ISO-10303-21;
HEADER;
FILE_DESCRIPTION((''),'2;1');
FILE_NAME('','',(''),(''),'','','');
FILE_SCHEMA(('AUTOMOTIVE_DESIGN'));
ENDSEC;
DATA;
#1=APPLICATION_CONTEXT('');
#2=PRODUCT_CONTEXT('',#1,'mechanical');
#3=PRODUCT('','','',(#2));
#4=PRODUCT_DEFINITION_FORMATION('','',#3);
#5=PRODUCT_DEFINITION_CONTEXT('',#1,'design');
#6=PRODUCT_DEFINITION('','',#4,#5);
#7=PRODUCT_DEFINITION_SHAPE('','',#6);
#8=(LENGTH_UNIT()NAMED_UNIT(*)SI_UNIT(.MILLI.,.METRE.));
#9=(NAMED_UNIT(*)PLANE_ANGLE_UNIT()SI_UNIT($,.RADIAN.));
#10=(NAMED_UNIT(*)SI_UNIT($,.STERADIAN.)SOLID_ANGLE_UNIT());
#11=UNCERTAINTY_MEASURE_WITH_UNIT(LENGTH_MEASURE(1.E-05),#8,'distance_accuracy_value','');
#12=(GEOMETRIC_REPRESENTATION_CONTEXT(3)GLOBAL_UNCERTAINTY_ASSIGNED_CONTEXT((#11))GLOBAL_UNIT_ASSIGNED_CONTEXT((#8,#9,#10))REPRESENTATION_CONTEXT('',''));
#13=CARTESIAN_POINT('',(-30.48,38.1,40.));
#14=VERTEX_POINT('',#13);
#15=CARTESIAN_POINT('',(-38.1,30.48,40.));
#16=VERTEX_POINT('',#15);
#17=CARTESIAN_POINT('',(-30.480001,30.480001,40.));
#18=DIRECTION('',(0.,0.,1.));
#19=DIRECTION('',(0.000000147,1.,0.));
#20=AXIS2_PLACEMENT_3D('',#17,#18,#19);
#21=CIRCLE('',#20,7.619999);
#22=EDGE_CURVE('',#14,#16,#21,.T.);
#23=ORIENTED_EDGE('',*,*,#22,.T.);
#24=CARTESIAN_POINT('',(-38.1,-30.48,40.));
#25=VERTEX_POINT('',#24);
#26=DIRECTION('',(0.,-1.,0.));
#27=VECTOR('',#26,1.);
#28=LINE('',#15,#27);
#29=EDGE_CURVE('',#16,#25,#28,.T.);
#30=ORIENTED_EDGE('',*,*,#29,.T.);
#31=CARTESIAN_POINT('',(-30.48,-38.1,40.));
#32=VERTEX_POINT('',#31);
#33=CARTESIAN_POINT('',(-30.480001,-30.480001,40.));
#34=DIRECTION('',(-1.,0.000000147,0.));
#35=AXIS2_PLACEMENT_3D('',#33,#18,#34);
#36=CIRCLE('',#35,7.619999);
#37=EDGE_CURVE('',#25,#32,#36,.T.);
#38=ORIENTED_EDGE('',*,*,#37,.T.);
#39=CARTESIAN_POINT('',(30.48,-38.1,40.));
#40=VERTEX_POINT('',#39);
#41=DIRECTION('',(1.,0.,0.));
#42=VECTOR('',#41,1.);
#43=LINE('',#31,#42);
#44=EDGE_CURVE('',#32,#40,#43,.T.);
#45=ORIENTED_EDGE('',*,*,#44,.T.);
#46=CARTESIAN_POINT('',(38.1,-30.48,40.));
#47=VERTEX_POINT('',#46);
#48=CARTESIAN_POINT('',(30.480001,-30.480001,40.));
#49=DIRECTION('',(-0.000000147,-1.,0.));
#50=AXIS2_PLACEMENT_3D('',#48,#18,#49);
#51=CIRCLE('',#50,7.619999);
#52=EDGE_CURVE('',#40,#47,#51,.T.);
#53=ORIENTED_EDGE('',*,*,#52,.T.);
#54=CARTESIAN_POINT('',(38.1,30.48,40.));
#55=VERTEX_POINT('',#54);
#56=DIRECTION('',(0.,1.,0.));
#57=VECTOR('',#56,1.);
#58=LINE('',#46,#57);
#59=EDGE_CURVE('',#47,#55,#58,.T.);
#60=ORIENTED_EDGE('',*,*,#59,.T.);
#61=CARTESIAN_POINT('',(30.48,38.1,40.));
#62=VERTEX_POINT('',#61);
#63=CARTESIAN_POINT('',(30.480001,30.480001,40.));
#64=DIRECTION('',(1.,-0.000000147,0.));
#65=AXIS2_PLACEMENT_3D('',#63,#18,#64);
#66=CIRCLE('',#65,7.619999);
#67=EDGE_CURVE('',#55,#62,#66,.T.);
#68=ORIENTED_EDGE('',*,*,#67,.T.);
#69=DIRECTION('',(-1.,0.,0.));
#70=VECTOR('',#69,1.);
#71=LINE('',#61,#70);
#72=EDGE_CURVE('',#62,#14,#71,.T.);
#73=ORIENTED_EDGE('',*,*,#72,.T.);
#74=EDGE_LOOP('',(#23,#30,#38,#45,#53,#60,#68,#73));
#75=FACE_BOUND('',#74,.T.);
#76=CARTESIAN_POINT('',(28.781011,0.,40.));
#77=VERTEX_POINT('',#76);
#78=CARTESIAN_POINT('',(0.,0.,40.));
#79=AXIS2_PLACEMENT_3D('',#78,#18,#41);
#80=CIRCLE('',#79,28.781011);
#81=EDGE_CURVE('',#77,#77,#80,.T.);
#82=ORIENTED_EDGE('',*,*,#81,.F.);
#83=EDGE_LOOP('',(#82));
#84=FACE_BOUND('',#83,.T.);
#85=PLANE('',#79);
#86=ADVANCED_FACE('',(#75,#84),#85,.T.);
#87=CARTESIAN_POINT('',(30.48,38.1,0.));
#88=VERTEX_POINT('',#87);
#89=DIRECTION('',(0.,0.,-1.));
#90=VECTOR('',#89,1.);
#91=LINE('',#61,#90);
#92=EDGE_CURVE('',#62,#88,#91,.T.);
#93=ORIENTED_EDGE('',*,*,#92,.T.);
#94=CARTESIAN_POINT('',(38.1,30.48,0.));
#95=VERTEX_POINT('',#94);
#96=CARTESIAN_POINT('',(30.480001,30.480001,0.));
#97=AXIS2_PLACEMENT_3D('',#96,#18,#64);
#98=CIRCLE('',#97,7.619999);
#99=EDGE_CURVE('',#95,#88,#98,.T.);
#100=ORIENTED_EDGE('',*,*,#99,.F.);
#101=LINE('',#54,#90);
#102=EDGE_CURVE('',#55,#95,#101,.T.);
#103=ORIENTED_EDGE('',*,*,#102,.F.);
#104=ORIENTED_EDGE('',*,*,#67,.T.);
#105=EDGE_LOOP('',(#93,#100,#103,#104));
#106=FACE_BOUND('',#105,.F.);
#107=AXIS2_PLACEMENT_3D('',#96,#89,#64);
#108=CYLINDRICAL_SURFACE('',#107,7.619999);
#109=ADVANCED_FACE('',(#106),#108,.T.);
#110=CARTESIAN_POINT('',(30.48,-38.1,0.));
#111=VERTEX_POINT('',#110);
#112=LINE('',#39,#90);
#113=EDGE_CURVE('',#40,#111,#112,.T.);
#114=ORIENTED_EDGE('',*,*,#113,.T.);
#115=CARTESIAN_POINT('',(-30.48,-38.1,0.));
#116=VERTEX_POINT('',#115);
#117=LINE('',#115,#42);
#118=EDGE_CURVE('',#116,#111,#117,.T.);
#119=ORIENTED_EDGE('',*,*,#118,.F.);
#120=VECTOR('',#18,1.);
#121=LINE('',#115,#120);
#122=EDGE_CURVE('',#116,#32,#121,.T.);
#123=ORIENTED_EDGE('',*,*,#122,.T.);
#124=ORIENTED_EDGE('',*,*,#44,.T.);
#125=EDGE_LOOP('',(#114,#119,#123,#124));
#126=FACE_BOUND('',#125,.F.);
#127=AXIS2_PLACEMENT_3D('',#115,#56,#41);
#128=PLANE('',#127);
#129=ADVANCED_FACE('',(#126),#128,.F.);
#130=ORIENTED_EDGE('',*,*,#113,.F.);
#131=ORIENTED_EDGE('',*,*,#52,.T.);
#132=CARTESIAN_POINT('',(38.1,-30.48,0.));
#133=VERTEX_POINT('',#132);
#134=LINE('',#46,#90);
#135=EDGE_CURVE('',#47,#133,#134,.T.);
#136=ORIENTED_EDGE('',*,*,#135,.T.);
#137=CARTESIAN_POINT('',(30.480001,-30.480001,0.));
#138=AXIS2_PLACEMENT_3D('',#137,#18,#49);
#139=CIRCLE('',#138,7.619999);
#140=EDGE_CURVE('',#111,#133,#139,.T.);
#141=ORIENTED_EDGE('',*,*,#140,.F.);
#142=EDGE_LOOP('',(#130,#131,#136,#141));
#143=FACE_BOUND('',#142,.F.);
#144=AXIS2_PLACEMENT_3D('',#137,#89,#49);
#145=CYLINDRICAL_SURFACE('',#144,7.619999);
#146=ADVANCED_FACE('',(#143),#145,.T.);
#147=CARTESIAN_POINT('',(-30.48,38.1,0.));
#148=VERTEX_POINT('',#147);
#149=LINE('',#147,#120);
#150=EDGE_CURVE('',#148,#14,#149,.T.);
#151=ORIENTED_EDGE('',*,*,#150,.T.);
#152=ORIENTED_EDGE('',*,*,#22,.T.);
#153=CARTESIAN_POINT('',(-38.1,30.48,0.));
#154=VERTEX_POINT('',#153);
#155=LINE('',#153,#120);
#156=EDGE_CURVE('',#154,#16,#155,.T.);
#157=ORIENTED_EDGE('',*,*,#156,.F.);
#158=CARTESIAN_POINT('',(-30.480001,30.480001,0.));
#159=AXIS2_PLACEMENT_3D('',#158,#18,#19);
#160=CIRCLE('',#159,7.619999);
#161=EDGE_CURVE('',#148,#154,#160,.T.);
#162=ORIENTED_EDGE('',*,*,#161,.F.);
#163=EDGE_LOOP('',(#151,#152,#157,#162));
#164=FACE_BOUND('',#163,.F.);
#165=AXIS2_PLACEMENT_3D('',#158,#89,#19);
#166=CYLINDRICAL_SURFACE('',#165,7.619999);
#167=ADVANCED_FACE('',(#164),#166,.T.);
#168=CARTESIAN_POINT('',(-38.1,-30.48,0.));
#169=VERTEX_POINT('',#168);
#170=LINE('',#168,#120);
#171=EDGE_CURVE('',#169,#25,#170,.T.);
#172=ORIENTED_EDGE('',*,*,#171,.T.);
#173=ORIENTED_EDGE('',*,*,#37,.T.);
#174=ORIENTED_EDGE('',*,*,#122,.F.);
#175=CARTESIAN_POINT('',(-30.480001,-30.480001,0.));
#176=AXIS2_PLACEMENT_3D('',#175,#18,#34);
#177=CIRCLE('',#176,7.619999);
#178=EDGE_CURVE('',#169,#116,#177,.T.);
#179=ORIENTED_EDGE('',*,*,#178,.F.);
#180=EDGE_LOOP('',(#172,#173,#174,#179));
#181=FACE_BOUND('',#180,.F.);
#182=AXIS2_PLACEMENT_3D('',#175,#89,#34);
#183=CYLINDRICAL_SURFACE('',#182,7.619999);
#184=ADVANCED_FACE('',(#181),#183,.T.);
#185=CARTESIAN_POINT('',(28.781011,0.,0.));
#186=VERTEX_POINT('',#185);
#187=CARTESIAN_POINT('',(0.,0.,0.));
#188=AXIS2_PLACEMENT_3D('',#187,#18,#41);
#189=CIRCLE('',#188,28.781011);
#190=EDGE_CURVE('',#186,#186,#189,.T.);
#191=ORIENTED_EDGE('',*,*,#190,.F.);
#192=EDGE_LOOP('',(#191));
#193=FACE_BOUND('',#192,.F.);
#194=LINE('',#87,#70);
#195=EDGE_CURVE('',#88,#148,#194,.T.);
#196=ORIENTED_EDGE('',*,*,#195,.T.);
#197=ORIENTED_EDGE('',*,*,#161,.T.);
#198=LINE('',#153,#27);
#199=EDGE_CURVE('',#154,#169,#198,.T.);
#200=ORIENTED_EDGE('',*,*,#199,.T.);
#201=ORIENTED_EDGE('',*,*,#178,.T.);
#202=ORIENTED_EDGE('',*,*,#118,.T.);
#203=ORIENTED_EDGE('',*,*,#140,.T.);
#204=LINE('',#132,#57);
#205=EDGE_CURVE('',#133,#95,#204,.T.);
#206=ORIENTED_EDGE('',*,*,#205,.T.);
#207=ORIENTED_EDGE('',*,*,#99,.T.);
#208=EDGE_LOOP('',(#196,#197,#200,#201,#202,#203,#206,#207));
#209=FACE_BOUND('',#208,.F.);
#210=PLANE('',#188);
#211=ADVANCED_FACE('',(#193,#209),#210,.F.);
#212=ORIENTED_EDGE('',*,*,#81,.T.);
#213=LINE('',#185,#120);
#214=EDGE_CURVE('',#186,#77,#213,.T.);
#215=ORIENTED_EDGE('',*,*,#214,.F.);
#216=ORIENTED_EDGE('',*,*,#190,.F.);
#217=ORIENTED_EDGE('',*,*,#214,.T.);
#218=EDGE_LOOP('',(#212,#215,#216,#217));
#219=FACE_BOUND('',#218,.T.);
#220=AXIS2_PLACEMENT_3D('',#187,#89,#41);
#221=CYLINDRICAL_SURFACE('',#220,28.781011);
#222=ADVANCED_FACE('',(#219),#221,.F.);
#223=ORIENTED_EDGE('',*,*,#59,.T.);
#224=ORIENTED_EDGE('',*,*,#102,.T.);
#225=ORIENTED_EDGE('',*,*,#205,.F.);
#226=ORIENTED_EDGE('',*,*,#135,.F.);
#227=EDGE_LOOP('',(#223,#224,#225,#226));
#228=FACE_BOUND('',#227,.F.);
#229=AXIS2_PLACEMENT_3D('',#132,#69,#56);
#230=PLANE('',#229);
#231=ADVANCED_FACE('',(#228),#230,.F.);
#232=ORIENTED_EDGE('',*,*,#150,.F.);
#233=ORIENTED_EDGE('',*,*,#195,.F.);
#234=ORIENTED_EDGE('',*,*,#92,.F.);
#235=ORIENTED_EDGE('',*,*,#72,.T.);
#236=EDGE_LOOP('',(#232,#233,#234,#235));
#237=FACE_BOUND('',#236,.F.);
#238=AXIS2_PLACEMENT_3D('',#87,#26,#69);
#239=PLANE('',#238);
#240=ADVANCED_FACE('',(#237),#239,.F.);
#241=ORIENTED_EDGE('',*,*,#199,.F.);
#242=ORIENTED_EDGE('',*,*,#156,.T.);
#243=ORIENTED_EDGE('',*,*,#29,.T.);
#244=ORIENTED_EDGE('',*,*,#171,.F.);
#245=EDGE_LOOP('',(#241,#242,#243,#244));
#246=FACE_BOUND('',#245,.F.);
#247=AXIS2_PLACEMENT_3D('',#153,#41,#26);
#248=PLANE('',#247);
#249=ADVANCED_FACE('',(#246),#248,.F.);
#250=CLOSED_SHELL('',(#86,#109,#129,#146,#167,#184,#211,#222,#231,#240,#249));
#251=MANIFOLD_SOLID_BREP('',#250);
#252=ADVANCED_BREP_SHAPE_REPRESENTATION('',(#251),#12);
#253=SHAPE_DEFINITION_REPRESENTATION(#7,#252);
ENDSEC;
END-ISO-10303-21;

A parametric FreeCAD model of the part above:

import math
import FreeCAD as App
import Part
import Sketcher
from FreeCAD import Vector

doc = App.newDocument("Part")
params = doc.addObject("Spreadsheet::Sheet", "Params")
for row, (alias, value) in enumerate([
    ("sketch1_radius", "7.619999 mm"),
    ("sketch1_width", "60.96 mm"),
    ("pad1_length", "40 mm"),
    ("sketch2_radius", "7.619999 mm"),
    ("sketch2_width", "60.96 mm"),
    ("pad2_length", "10 mm"),
    ("sketch3_radius", "7.619999 mm"),
    ("sketch3_width", "60.96 mm"),
    ("pad3_length", "20 mm"),
], start=1):
    params.set(f"A{row}", alias)
    params.set(f"B{row}", "=" + value)
    params.setAlias(f"B{row}", alias)

body = doc.addObject("PartDesign::Body", "Body")

sketch1 = body.newObject("Sketcher::SketchObject", "Sketch")
sketch1.AttachmentSupport = (doc.getObject("XY_Plane"), [""])
sketch1.MapMode = "FlatFace"
sketch1.addGeometry([
    Part.LineSegment(Vector(30, 38, 0), Vector(-30, 38, 0)),
    Part.ArcOfCircle(Part.Circle(Vector(-30, 30, 0), Vector(0, 0, 1), 8), math.radians(90), math.radians(180)),
    Part.LineSegment(Vector(-38, 30, 0), Vector(-38, -30, 0)),
    Part.ArcOfCircle(Part.Circle(Vector(-30, -30, 0), Vector(0, 0, 1), 8), math.radians(180), math.radians(270)),
    Part.LineSegment(Vector(-30, -38, 0), Vector(30, -38, 0)),
    Part.ArcOfCircle(Part.Circle(Vector(30, -30, 0), Vector(0, 0, 1), 8), math.radians(-90), math.radians(0)),
    Part.LineSegment(Vector(38, -30, 0), Vector(38, 30, 0)),
    Part.ArcOfCircle(Part.Circle(Vector(30, 30, 0), Vector(0, 0, 1), 8), math.radians(0), math.radians(90)),
    Part.Circle(Vector(0, 0, 0), Vector(0, 0, 1), 29),
], False)
sketch1.addConstraint([
    Sketcher.Constraint("Tangent", 0, 2, 1, 1),
    Sketcher.Constraint("Tangent", 1, 2, 2, 1),
    Sketcher.Constraint("Tangent", 2, 2, 3, 1),
    Sketcher.Constraint("Tangent", 3, 2, 4, 1),
    Sketcher.Constraint("Tangent", 4, 2, 5, 1),
    Sketcher.Constraint("Tangent", 5, 2, 6, 1),
    Sketcher.Constraint("Tangent", 6, 2, 7, 1),
    Sketcher.Constraint("Tangent", 7, 2, 0, 1),
    Sketcher.Constraint("Horizontal", 0),
    Sketcher.Constraint("Vertical", 2),
    Sketcher.Constraint("Horizontal", 4),
    Sketcher.Constraint("Vertical", 6),
    Sketcher.Constraint("Coincident", 8, 3, -1, 1),
    Sketcher.Constraint("Equal", 1, 3),
    Sketcher.Constraint("Equal", 3, 5),
    Sketcher.Constraint("Equal", 5, 7),
    Sketcher.Constraint("Symmetric", 1, 3, 5, 3, -1, 1),
    Sketcher.Constraint("Equal", 4, 2),
    Sketcher.Constraint("Radius", 1, 7.619999),
    Sketcher.Constraint("DistanceX", 0, 2, 0, 1, 60.96),
    Sketcher.Constraint("Diameter", 8, 57.562022),
])
sketch1.setExpression("Constraints[18]", "Params.sketch1_radius")
sketch1.setExpression("Constraints[19]", "Params.sketch1_width")
pad1 = body.newObject("PartDesign::Pad", "Pad")
pad1.Profile = sketch1
pad1.setExpression("Length", "Params.pad1_length")

sketch2 = body.newObject("Sketcher::SketchObject", "Sketch001")
sketch2.AttachmentSupport = (doc.getObject("XY_Plane"), [""])
sketch2.MapMode = "FlatFace"
sketch2.addGeometry([
    Part.LineSegment(Vector(-30, 38, 0), Vector(30, 38, 0)),
    Part.ArcOfCircle(Part.Circle(Vector(30, 30, 0), Vector(0, 0, 1), 8), math.radians(0), math.radians(90)),
    Part.LineSegment(Vector(38, 30, 0), Vector(38, -30, 0)),
    Part.ArcOfCircle(Part.Circle(Vector(30, -30, 0), Vector(0, 0, 1), 8), math.radians(-90), math.radians(0)),
    Part.LineSegment(Vector(30, -38, 0), Vector(-30, -38, 0)),
    Part.ArcOfCircle(Part.Circle(Vector(-30, -30, 0), Vector(0, 0, 1), 8), math.radians(180), math.radians(270)),
    Part.LineSegment(Vector(-38, -30, 0), Vector(-38, 30, 0)),
    Part.ArcOfCircle(Part.Circle(Vector(-30, 30, 0), Vector(0, 0, 1), 8), math.radians(90), math.radians(180)),
    Part.Circle(Vector(0, 0, 0), Vector(0, 0, 1), 29),
], False)
sketch2.addConstraint([
    Sketcher.Constraint("Tangent", 0, 2, 1, 2),
    Sketcher.Constraint("Tangent", 1, 1, 2, 1),
    Sketcher.Constraint("Tangent", 2, 2, 3, 2),
    Sketcher.Constraint("Tangent", 3, 1, 4, 1),
    Sketcher.Constraint("Tangent", 4, 2, 5, 2),
    Sketcher.Constraint("Tangent", 5, 1, 6, 1),
    Sketcher.Constraint("Tangent", 6, 2, 7, 2),
    Sketcher.Constraint("Tangent", 7, 1, 0, 1),
    Sketcher.Constraint("Horizontal", 0),
    Sketcher.Constraint("Vertical", 2),
    Sketcher.Constraint("Horizontal", 4),
    Sketcher.Constraint("Vertical", 6),
    Sketcher.Constraint("Coincident", 8, 3, -1, 1),
    Sketcher.Constraint("Equal", 1, 3),
    Sketcher.Constraint("Equal", 3, 5),
    Sketcher.Constraint("Equal", 5, 7),
    Sketcher.Constraint("Symmetric", 1, 3, 5, 3, -1, 1),
    Sketcher.Constraint("Equal", 4, 2),
    Sketcher.Constraint("Radius", 1, 7.619999),
    Sketcher.Constraint("DistanceX", 0, 1, 0, 2, 60.96),
    Sketcher.Constraint("Diameter", 8, 57.562022),
])
sketch2.setExpression("Constraints[18]", "Params.sketch2_radius")
sketch2.setExpression("Constraints[19]", "Params.sketch2_width")
pad2 = body.newObject("PartDesign::Pad", "Pad001")
pad2.Profile = sketch2
pad2.setExpression("Length", "Params.pad2_length")

sketch3 = body.newObject("Sketcher::SketchObject", "Sketch002")
sketch3.AttachmentSupport = (doc.getObject("XY_Plane"), [""])
sketch3.MapMode = "FlatFace"
sketch3.addGeometry([
    Part.LineSegment(Vector(30, 38, 0), Vector(-30, 38, 0)),
    Part.ArcOfCircle(Part.Circle(Vector(-30, 30, 0), Vector(0, 0, 1), 8), math.radians(90), math.radians(180)),
    Part.LineSegment(Vector(-38, 30, 0), Vector(-38, -30, 0)),
    Part.ArcOfCircle(Part.Circle(Vector(-30, -30, 0), Vector(0, 0, 1), 8), math.radians(180), math.radians(270)),
    Part.LineSegment(Vector(-30, -38, 0), Vector(30, -38, 0)),
    Part.ArcOfCircle(Part.Circle(Vector(30, -30, 0), Vector(0, 0, 1), 8), math.radians(-90), math.radians(0)),
    Part.LineSegment(Vector(38, -30, 0), Vector(38, 30, 0)),
    Part.ArcOfCircle(Part.Circle(Vector(30, 30, 0), Vector(0, 0, 1), 8), math.radians(0), math.radians(90)),
    Part.Circle(Vector(0, 0, 0), Vector(0, 0, 1), 29),
], False)
sketch3.addConstraint([
    Sketcher.Constraint("Tangent", 0, 2, 1, 1),
    Sketcher.Constraint("Tangent", 1, 2, 2, 1),
    Sketcher.Constraint("Tangent", 2, 2, 3, 1),
    Sketcher.Constraint("Tangent", 3, 2, 4, 1),
    Sketcher.Constraint("Tangent", 4, 2, 5, 1),
    Sketcher.Constraint("Tangent", 5, 2, 6, 1),
    Sketcher.Constraint("Tangent", 6, 2, 7, 1),
    Sketcher.Constraint("Tangent", 7, 2, 0, 1),
    Sketcher.Constraint("Horizontal", 0),
    Sketcher.Constraint("Vertical", 2),
    Sketcher.Constraint("Horizontal", 4),
    Sketcher.Constraint("Vertical", 6),
    Sketcher.Constraint("Coincident", 8, 3, -1, 1),
    Sketcher.Constraint("Equal", 1, 3),
    Sketcher.Constraint("Equal", 3, 5),
    Sketcher.Constraint("Equal", 5, 7),
    Sketcher.Constraint("Symmetric", 1, 3, 5, 3, -1, 1),
    Sketcher.Constraint("Equal", 4, 2),
    Sketcher.Constraint("Radius", 1, 7.619999),
    Sketcher.Constraint("DistanceX", 0, 2, 0, 1, 60.96),
    Sketcher.Constraint("Diameter", 8, 57.562022),
])
sketch3.setExpression("Constraints[18]", "Params.sketch3_radius")
sketch3.setExpression("Constraints[19]", "Params.sketch3_width")
pad3 = body.newObject("PartDesign::Pad", "Pad002")
pad3.Profile = sketch3
pad3.setExpression("Length", "Params.pad3_length")

doc.recompute()
